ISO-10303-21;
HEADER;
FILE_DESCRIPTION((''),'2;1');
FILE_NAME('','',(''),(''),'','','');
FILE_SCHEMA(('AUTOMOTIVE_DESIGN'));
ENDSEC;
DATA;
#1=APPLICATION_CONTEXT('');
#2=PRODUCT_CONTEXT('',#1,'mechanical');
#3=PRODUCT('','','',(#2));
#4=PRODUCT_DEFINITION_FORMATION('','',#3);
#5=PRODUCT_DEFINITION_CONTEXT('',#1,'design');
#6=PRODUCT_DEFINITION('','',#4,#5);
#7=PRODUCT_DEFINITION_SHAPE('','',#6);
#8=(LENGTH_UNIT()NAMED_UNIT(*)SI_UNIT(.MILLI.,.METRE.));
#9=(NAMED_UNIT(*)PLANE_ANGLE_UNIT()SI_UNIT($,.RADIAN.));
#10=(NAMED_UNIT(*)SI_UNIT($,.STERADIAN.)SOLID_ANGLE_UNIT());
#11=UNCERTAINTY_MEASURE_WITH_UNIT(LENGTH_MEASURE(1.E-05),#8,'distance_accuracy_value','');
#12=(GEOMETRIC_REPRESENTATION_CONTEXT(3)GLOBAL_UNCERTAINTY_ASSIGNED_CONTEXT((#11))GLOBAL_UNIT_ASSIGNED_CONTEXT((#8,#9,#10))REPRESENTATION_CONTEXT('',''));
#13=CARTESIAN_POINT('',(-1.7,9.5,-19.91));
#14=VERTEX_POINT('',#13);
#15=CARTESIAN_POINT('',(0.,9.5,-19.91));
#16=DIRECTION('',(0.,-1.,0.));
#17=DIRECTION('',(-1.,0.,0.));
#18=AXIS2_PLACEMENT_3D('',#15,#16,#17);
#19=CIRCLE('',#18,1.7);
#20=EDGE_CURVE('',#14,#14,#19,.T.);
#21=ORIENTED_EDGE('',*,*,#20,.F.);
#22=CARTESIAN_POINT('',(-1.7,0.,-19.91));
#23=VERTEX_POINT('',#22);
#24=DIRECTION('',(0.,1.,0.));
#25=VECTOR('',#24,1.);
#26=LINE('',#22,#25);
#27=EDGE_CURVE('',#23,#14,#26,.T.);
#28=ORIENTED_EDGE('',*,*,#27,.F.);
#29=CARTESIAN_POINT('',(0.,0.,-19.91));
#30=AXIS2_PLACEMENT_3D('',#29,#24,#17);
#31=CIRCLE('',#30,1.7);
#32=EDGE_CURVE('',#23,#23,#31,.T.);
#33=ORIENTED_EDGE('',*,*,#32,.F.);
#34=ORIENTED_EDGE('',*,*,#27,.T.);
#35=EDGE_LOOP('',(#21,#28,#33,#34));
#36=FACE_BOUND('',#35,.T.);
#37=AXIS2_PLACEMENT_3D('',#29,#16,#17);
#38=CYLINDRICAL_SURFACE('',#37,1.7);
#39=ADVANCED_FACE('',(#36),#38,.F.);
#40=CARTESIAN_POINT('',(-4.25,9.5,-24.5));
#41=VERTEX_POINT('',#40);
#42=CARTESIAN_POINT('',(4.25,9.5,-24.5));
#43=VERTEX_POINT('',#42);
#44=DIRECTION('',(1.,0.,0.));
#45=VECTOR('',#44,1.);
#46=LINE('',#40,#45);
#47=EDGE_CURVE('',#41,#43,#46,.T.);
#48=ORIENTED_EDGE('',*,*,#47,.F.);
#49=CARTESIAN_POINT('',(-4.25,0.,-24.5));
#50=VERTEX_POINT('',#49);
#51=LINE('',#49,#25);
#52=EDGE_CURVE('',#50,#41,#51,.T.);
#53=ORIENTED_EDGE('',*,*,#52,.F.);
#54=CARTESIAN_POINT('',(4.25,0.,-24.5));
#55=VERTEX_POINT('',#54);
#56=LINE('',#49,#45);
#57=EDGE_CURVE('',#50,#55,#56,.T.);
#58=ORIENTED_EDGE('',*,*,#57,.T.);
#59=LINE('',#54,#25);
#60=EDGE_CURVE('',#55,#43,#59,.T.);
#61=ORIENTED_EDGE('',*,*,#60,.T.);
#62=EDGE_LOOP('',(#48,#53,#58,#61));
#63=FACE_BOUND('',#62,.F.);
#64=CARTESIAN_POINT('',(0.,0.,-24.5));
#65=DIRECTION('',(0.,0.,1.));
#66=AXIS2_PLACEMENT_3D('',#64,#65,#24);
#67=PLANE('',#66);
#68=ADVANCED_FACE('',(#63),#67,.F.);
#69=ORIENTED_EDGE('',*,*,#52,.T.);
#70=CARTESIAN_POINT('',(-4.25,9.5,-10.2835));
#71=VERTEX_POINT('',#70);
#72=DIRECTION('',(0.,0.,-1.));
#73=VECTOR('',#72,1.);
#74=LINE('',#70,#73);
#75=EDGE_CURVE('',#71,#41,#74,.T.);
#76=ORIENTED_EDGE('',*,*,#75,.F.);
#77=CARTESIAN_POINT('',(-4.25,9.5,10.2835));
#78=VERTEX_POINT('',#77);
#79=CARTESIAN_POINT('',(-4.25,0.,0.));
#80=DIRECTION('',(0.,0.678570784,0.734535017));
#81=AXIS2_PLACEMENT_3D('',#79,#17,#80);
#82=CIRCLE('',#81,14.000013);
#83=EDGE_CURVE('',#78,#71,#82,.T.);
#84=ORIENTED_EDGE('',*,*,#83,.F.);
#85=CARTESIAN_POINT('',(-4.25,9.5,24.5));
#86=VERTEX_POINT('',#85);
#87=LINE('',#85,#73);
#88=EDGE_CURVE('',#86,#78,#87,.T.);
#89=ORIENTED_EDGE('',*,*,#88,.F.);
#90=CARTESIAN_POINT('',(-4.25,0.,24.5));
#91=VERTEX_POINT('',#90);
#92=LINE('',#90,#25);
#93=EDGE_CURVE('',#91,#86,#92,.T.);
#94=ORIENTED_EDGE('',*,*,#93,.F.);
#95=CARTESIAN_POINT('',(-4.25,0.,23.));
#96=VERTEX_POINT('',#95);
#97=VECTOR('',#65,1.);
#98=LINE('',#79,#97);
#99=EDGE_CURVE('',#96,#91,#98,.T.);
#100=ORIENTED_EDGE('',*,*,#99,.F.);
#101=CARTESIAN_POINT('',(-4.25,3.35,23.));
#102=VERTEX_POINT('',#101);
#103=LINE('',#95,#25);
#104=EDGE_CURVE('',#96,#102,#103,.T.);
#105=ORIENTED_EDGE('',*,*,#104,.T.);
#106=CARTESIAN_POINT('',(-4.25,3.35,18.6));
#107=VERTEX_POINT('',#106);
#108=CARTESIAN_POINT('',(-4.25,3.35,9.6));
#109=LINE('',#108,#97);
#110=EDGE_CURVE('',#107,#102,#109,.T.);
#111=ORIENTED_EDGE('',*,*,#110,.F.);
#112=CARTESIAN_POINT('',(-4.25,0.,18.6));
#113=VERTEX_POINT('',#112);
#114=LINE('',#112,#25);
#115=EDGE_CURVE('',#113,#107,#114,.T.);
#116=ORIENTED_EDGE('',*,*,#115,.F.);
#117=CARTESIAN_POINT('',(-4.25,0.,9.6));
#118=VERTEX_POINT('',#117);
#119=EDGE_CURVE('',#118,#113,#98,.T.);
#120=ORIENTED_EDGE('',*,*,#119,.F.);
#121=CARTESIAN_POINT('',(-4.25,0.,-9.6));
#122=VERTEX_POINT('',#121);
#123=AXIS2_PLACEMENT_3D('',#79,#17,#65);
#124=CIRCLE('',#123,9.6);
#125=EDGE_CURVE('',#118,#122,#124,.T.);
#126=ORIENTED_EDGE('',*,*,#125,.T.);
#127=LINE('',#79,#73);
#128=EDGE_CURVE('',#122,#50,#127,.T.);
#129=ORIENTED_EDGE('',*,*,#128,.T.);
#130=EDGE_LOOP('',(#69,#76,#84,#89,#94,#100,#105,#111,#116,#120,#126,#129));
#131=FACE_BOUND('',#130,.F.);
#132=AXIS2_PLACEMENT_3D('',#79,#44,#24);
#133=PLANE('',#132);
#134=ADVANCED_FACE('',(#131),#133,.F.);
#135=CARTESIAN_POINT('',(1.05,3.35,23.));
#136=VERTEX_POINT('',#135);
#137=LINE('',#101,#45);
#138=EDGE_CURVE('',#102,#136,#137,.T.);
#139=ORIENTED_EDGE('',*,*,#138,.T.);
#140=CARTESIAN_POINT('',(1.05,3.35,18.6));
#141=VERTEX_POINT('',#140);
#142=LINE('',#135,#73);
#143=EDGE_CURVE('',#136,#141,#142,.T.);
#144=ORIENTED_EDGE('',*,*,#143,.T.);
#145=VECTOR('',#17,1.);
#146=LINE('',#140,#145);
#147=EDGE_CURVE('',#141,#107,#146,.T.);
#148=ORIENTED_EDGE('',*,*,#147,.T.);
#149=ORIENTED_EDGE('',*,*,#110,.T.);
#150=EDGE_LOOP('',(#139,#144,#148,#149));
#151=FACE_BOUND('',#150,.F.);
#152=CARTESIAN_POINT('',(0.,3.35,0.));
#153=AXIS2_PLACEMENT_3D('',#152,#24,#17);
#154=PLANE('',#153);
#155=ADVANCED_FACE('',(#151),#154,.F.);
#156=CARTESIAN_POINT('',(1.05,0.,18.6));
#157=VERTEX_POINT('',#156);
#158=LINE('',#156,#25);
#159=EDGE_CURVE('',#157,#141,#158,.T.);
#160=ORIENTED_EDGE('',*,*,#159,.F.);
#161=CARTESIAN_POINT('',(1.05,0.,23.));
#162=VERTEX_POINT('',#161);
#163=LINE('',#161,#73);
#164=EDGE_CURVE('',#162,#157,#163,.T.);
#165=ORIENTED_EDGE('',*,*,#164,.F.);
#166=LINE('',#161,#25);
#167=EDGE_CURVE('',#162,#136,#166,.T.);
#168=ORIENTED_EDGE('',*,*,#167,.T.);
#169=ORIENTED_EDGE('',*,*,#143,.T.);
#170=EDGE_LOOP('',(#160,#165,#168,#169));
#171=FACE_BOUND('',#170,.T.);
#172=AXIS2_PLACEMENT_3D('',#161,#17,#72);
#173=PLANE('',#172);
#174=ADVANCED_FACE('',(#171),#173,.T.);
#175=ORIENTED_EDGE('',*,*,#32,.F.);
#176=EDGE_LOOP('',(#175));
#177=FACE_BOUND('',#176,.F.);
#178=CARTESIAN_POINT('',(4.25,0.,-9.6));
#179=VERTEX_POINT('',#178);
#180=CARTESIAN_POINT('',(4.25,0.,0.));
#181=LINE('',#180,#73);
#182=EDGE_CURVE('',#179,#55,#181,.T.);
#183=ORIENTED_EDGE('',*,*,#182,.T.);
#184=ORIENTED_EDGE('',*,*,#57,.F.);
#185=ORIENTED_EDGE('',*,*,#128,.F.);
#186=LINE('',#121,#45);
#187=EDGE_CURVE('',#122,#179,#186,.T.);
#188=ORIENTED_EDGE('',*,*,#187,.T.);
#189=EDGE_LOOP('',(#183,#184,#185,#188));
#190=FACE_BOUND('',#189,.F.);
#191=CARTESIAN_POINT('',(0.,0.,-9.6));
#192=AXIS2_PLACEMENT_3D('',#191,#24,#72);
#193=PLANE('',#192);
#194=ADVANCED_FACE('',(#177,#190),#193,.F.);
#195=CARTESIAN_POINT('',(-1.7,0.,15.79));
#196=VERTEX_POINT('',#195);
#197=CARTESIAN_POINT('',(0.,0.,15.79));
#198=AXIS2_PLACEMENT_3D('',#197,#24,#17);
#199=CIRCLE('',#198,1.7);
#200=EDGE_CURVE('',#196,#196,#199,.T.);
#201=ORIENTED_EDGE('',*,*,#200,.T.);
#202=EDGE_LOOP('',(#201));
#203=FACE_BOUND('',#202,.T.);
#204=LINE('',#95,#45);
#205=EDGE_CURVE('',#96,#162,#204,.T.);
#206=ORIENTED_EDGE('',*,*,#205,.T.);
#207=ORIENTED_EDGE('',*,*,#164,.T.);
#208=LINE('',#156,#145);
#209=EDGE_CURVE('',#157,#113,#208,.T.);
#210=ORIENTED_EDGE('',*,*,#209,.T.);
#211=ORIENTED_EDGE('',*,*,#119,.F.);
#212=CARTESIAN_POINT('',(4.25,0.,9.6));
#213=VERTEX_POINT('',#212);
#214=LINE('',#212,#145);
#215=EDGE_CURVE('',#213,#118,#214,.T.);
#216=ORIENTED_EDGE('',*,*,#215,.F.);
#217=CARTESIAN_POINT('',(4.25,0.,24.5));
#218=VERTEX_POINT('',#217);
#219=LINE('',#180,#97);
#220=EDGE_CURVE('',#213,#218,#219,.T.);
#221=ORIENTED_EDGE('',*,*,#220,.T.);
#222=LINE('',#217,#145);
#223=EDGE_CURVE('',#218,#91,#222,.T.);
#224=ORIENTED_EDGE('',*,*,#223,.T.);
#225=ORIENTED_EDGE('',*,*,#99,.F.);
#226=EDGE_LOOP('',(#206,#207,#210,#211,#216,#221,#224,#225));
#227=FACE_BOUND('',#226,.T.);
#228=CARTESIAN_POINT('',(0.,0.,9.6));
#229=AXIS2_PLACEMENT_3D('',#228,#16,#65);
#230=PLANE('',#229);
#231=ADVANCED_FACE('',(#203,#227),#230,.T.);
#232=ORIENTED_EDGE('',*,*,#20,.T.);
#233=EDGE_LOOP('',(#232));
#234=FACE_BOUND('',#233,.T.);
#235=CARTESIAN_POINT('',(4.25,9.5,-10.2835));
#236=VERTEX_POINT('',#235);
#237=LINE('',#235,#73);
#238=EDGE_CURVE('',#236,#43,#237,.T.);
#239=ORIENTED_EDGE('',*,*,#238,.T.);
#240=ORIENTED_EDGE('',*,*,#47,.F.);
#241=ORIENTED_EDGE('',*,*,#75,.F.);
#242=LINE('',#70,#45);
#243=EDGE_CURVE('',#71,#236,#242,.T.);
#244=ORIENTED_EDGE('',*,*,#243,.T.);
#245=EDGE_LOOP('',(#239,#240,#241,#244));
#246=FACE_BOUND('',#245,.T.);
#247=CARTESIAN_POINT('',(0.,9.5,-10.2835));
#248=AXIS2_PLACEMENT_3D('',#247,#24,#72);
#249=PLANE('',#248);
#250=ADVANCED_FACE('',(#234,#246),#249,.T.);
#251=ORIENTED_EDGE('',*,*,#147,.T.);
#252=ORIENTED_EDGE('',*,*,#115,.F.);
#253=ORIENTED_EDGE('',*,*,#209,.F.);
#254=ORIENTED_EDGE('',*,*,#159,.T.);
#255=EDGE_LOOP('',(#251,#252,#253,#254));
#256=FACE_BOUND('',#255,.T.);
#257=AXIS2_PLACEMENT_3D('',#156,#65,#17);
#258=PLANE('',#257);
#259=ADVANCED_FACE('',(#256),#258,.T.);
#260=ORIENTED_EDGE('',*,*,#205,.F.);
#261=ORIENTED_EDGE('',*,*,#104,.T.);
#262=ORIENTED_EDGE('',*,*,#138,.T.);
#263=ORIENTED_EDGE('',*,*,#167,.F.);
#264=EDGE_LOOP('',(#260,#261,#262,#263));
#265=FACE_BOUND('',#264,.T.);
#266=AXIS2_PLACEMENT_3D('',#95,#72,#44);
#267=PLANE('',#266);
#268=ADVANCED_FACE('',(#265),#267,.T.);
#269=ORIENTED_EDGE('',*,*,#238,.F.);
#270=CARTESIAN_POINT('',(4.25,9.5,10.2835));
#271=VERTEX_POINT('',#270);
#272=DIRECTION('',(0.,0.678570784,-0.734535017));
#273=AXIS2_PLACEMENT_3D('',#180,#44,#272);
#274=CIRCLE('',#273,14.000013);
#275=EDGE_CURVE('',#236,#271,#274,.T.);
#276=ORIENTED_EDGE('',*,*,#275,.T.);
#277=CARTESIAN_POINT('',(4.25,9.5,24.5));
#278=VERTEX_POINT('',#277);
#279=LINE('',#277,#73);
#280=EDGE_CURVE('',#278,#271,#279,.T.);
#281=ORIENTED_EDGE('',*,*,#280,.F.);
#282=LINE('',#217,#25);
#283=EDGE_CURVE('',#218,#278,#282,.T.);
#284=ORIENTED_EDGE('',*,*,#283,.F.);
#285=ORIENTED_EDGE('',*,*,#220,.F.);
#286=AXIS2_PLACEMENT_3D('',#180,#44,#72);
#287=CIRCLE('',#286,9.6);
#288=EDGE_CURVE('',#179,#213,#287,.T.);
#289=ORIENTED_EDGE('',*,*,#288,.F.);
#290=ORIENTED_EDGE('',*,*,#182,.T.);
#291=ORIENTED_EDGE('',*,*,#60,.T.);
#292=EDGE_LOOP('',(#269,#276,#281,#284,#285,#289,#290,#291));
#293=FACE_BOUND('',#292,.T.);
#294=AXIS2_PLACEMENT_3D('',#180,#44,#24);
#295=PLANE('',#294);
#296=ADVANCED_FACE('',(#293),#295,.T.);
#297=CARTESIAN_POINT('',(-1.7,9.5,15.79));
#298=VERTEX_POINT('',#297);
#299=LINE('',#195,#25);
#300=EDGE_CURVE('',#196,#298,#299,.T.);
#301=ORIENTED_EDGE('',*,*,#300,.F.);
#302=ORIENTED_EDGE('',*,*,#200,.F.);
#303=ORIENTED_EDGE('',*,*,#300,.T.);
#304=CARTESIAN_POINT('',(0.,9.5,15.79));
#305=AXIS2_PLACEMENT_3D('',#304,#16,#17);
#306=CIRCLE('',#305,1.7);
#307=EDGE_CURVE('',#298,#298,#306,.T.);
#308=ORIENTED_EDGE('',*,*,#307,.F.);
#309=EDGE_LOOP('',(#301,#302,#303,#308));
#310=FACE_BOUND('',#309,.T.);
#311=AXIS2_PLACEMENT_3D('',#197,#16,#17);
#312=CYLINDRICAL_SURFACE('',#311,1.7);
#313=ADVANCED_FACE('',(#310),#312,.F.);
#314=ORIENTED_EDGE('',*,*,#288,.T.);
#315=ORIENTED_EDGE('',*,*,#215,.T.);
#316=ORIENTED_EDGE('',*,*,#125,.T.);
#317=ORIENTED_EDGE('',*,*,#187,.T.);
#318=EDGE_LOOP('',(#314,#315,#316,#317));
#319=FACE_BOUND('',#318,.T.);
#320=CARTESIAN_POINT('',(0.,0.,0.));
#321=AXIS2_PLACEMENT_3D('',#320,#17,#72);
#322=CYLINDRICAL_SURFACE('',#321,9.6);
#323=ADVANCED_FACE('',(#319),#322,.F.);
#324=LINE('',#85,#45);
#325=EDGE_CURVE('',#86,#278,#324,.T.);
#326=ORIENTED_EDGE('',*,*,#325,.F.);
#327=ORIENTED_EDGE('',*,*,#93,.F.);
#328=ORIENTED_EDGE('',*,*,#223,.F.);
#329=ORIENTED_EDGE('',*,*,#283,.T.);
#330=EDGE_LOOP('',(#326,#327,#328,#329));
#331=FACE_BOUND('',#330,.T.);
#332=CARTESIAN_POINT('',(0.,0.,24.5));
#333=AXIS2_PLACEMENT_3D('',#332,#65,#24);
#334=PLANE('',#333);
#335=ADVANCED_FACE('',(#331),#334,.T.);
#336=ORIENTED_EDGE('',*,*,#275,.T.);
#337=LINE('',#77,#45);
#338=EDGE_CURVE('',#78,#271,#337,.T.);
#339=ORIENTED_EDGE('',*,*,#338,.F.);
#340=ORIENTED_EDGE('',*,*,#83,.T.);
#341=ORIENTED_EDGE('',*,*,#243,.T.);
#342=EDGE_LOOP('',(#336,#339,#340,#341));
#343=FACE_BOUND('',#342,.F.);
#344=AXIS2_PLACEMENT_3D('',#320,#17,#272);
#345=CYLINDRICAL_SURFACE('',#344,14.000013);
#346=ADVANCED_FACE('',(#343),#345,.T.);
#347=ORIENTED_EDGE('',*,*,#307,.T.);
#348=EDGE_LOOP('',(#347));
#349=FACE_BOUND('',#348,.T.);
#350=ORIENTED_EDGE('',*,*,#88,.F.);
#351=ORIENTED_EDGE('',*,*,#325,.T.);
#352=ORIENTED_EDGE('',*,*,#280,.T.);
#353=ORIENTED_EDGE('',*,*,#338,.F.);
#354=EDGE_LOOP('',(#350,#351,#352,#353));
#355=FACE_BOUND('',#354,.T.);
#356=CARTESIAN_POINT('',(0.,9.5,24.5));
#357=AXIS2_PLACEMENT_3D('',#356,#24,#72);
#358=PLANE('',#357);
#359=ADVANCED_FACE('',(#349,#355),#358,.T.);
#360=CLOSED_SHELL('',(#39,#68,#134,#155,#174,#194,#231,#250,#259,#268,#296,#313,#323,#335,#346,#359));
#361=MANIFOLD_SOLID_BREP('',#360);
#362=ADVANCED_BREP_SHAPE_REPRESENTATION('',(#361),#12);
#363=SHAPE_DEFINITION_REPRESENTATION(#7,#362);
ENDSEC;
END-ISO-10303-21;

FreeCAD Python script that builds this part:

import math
import FreeCAD as App
import Part
import Sketcher
from FreeCAD import Vector
Q = App.Units.Quantity


def add_polygon(sketch, points):
    """Adds a closed chain of lines whose ends are joined by coincident constraints."""
    first, n = sketch.GeometryCount, len(points)
    for a, b in zip(points, points[1:] + points[:1]):
        sketch.addGeometry(Part.LineSegment(App.Vector(*a, 0), App.Vector(*b, 0)), False)
    for i in range(n):
        sketch.addConstraint(Sketcher.Constraint("Coincident", first + i, 2, first + (i + 1) % n, 1))

doc = App.newDocument("Part")
body = doc.addObject("PartDesign::Body", "Body")

sketch1 = body.newObject("Sketcher::SketchObject", "Sketch")
sketch1.AttachmentSupport = (doc.getObject("YZ_Plane"), [""])
sketch1.MapMode = "FlatFace"
sketch1.addGeometry([
    Part.LineSegment(Vector(0, -10, 0), Vector(0, -24, 0)),
    Part.LineSegment(Vector(0, -24, 0), Vector(10, -24, 0)),
    Part.LineSegment(Vector(10, -24, 0), Vector(10, -10, 0)),
    Part.ArcOfCircle(Part.Circle(Vector(0, 0, 0), Vector(0, 0, 1), 14), math.radians(-47), math.radians(47)),
    Part.LineSegment(Vector(10, 10, 0), Vector(10, 24, 0)),
    Part.LineSegment(Vector(10, 24, 0), Vector(0, 24, 0)),
    Part.LineSegment(Vector(0, 24, 0), Vector(0, 10, 0)),
    Part.ArcOfCircle(Part.Circle(Vector(0, 0, 0), Vector(0, 0, 1), 10), math.radians(-90), math.radians(90)),
], False)
sketch1.addConstraint([
    Sketcher.Constraint("Coincident", 0, 2, 1, 1),
    Sketcher.Constraint("Coincident", 1, 2, 2, 1),
    Sketcher.Constraint("Coincident", 2, 2, 3, 1),
    Sketcher.Constraint("Coincident", 3, 2, 4, 1),
    Sketcher.Constraint("Coincident", 4, 2, 5, 1),
    Sketcher.Constraint("Coincident", 5, 2, 6, 1),
    Sketcher.Constraint("Coincident", 6, 2, 7, 2),
    Sketcher.Constraint("Coincident", 7, 1, 0, 1),
    Sketcher.Constraint("Vertical", 0),
    Sketcher.Constraint("Horizontal", 1),
    Sketcher.Constraint("Vertical", 2),
    Sketcher.Constraint("Vertical", 4),
    Sketcher.Constraint("Horizontal", 5),
    Sketcher.Constraint("Vertical", 6),
    Sketcher.Constraint("Coincident", 3, 3, -1, 1),
    Sketcher.Constraint("Coincident", 7, 3, -1, 1),
    Sketcher.Constraint("Symmetric", 0, 2, 5, 2, -1, 1),
    Sketcher.Constraint("PointOnObject", 0, 2, -2),
    Sketcher.Constraint("Vertical", 2, 2, 3, 2),
    Sketcher.Constraint("Radius", 3, Q("14 mm")),
    Sketcher.Constraint("Radius", 7, Q("9.6 mm")),
    Sketcher.Constraint("DistanceX", 1, 1, 1, 2, Q("9.5 mm")),
    Sketcher.Constraint("DistanceY", 0, 2, -1, 1, Q("24.5 mm")),
])
pad1 = body.newObject("PartDesign::Pad", "Pad")
pad1.Profile = sketch1
pad1.Length = 8.5
pad1.Midplane = True

sketch2 = body.newObject("Sketcher::SketchObject", "Sketch001")
sketch2.AttachmentSupport = (doc.getObject("XZ_Plane"), [""])
sketch2.MapMode = "FlatFace"
sketch2.addGeometry([
    Part.Circle(Vector(0, -19.9, 0), Vector(0, 0, 1), 1.7),
    Part.Circle(Vector(0, 15.8, 0), Vector(0, 0, 1), 1.7),
], False)
sketch2.addConstraint([
    Sketcher.Constraint("Equal", 0, 1),
    Sketcher.Constraint("PointOnObject", 0, 3, -2),
    Sketcher.Constraint("PointOnObject", 1, 3, -2),
    Sketcher.Constraint("Diameter", 0, Q("3.4 mm")),
    Sketcher.Constraint("DistanceY", 0, 3, -1, 1, Q("19.91 mm")),
    Sketcher.Constraint("DistanceY", -1, 1, 1, 3, Q("15.79 mm")),
])
pocket1 = body.newObject("PartDesign::Pocket", "Pocket")
pocket1.Profile = sketch2
pocket1.Type = "ThroughAll"

sketch3 = body.newObject("Sketcher::SketchObject", "Sketch002")
sketch3.AttachmentSupport = (doc.getObject("XZ_Plane"), [""])
sketch3.MapMode = "FlatFace"
add_polygon(sketch3, [(1.1, 18.6), (-4.2, 18.6), (-4.2, 23), (1.1, 23)])
sketch3.addConstraint([
    Sketcher.Constraint("Horizontal", 0),
    Sketcher.Constraint("Vertical", 1),
    Sketcher.Constraint("Horizontal", 2),
    Sketcher.Constraint("Vertical", 3),
    Sketcher.Constraint("DistanceX", 0, 2, 0, 1, Q("5.3 mm")),
    Sketcher.Constraint("DistanceY", 1, 1, 1, 2, Q("4.4 mm")),
    Sketcher.Constraint("DistanceY", -1, 1, 0, 2, Q("18.6 mm")),
    Sketcher.Constraint("DistanceX", 0, 2, -1, 1, Q("4.25 mm")),
])
pocket2 = body.newObject("PartDesign::Pocket", "Pocket001")
pocket2.Profile = sketch3
pocket2.Length = 3.35

doc.recompute()
